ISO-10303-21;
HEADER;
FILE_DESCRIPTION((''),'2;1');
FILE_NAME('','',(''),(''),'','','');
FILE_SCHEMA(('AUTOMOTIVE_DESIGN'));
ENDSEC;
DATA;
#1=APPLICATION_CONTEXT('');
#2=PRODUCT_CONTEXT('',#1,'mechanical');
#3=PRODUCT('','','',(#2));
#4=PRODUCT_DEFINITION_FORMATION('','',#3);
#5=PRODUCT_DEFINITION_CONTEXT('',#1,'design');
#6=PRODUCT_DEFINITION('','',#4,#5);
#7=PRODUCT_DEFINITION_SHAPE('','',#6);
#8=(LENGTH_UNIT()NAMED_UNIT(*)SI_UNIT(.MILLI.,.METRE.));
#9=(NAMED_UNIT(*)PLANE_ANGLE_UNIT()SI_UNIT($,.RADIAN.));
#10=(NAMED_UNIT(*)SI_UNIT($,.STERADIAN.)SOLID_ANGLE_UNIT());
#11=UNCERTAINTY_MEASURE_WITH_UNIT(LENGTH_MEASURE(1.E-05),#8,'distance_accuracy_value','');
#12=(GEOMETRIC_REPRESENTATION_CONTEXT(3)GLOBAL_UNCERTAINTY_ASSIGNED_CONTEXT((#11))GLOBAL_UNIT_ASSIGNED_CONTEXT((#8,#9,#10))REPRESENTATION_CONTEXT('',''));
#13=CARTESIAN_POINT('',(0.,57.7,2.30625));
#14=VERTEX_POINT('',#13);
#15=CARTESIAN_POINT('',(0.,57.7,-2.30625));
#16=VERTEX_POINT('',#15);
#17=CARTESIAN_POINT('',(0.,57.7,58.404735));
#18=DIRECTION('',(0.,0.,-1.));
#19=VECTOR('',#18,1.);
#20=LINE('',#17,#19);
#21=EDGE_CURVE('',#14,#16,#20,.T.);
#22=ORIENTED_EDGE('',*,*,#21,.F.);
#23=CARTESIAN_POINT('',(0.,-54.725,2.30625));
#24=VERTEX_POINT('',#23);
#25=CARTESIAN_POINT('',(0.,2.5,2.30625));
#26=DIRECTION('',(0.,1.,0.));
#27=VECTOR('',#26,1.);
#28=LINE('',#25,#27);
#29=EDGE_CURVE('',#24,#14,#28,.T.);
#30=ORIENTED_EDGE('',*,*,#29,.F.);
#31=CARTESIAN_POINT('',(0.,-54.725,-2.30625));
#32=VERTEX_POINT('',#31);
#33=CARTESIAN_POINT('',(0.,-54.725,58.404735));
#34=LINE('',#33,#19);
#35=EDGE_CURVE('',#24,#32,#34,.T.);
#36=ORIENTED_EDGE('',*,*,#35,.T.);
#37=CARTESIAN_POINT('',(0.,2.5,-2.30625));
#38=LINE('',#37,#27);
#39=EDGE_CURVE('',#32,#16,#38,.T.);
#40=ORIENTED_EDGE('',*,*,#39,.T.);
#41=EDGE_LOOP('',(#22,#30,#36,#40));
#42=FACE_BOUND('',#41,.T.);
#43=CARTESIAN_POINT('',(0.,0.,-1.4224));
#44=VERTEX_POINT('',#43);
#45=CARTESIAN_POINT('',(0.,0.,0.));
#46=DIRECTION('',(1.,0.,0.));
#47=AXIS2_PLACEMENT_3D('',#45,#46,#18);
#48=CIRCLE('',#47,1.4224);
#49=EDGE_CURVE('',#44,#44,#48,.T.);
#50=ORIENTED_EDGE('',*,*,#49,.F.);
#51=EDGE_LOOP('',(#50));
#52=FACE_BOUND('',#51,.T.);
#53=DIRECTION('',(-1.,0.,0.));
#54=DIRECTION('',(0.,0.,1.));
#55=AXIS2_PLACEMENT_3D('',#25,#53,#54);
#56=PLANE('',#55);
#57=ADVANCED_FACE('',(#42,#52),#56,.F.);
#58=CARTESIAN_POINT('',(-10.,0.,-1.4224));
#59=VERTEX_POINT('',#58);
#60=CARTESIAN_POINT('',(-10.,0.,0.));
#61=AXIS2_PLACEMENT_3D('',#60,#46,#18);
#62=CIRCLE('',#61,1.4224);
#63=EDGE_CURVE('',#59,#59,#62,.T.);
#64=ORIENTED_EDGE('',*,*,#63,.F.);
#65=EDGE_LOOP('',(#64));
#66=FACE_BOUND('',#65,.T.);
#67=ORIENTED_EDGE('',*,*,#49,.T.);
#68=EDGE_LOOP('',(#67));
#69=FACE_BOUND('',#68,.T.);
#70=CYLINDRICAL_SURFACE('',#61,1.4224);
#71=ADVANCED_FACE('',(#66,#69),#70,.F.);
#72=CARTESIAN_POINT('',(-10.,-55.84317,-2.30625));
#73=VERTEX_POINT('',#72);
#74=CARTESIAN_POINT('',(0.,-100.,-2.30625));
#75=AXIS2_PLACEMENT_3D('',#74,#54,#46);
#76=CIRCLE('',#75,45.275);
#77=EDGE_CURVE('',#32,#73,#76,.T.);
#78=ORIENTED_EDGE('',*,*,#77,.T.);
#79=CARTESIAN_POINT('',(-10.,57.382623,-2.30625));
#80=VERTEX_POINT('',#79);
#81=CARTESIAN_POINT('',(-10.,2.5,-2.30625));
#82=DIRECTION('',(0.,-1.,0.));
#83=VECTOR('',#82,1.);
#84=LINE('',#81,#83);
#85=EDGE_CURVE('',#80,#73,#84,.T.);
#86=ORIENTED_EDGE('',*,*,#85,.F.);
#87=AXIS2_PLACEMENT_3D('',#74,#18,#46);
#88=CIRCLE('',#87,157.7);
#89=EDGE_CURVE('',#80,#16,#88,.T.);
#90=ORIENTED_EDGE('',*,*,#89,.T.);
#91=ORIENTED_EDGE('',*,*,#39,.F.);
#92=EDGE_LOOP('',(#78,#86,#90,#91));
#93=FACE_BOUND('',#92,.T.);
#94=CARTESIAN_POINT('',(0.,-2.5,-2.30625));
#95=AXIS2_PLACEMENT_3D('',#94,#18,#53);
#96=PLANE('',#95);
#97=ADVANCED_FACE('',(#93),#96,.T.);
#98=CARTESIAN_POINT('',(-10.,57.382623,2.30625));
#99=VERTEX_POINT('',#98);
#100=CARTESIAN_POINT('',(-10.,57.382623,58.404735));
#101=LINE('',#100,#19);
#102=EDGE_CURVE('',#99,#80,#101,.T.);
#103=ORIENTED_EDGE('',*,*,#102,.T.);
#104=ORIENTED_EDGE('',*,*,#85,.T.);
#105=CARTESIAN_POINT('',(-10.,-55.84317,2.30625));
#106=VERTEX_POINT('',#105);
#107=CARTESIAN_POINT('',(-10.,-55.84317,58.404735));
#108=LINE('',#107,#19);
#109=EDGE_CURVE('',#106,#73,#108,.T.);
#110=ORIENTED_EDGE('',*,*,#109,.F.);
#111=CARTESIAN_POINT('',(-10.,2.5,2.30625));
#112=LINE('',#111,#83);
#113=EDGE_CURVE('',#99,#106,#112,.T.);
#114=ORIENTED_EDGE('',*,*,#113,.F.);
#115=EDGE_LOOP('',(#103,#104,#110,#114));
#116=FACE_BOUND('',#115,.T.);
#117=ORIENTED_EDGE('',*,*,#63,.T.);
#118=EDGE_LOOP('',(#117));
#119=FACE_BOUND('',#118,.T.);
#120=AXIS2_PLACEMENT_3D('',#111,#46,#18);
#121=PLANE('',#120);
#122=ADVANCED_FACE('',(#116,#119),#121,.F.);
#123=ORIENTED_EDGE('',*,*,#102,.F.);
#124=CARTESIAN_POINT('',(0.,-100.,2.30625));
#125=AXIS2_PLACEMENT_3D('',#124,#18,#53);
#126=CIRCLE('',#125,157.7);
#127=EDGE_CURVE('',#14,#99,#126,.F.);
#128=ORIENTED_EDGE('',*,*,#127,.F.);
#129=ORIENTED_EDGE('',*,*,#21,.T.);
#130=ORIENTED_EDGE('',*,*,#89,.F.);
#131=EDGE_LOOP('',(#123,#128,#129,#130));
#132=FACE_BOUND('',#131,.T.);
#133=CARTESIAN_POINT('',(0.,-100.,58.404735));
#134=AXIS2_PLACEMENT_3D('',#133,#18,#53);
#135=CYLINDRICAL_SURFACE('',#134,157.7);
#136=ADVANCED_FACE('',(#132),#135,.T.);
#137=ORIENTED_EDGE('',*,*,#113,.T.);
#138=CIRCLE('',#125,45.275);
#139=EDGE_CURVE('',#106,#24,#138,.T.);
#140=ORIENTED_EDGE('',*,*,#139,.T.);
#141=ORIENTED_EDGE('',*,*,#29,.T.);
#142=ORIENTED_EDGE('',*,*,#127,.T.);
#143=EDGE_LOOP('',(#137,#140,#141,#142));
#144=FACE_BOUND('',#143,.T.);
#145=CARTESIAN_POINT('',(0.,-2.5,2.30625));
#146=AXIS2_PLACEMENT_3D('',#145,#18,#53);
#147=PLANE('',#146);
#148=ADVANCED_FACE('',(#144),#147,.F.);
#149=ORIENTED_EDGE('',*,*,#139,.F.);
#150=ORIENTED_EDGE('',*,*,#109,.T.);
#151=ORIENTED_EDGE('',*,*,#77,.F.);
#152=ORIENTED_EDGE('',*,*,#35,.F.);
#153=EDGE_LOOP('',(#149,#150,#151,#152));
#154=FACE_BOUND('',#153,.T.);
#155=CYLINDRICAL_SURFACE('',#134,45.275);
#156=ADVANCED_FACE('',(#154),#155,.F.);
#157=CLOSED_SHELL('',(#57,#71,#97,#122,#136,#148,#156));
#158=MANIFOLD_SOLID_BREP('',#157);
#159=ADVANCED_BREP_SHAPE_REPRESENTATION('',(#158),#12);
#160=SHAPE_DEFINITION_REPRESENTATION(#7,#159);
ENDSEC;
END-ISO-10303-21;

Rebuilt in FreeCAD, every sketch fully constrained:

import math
import FreeCAD as App
import Part
import Sketcher

V = App.Vector
Q = App.Units.Quantity


def add_polygon(sketch, points):
    """Adds a closed chain of lines whose ends are joined by coincident constraints."""
    first, n = sketch.GeometryCount, len(points)
    for a, b in zip(points, points[1:] + points[:1]):
        sketch.addGeometry(Part.LineSegment(App.Vector(*a, 0), App.Vector(*b, 0)), False)
    for i in range(n):
        sketch.addConstraint(Sketcher.Constraint("Coincident", first + i, 2, first + (i + 1) % n, 1))

doc = App.newDocument("Part")
body = doc.addObject("PartDesign::Body", "Body")

# Sketch on XY plane
sketch1 = doc.addObject("Sketcher::SketchObject", "Sketch")
body.addObject(sketch1)
sketch1.AttachmentSupport = (doc.XY_Plane, [""])
sketch1.MapMode = "FlatFace"
add_polygon(sketch1, [(-10, 2), (-10, -2), (0, -2), (0, 2)])  # lines 0-3
sketch1.addConstraint(Sketcher.Constraint("Vertical", 0))
sketch1.addConstraint(Sketcher.Constraint("Horizontal", 1))
sketch1.addConstraint(Sketcher.Constraint("Vertical", 2))
sketch1.addConstraint(Sketcher.Constraint("Horizontal", 3))
sketch1.addConstraint(Sketcher.Constraint("Symmetric", 1, 2, 2, 2, -1, 1))
sketch1.addConstraint(Sketcher.Constraint("DistanceX", 1, 1, 1, 2, Q("10 mm")))
sketch1.addConstraint(Sketcher.Constraint("DistanceY", 0, 2, 0, 1, Q("5 mm")))
pad1 = doc.addObject("PartDesign::Pad", "Pad")
body.addObject(pad1)
pad1.Profile = sketch1
pad1.Length = 4.6125
pad1.Midplane = True

# Sketch on YZ plane
sketch2 = doc.addObject("Sketcher::SketchObject", "Sketch001")
body.addObject(sketch2)
sketch2.AttachmentSupport = (doc.YZ_Plane, [""])
sketch2.MapMode = "FlatFace"
sketch2.addGeometry(Part.Circle(V(0, 0, 0), V(0, 0, 1), 1.4), False)
sketch2.addConstraint(Sketcher.Constraint("Coincident", 0, 3, -1, 1))
sketch2.addConstraint(Sketcher.Constraint("Diameter", 0, Q("2.8448 mm")))
pocket1 = doc.addObject("PartDesign::Pocket", "Pocket")
body.addObject(pocket1)
pocket1.Profile = sketch2
pocket1.Type = "ThroughAll"

# Sketch on XY plane
sketch3 = doc.addObject("Sketcher::SketchObject", "Sketch002")
body.addObject(sketch3)
sketch3.AttachmentSupport = (doc.XY_Plane, [""])
sketch3.MapMode = "FlatFace"
sketch3.AttachmentOffset = App.Placement(V(0, 0, -2.30625), App.Rotation())
sketch3.addGeometry(Part.LineSegment(V(-10, 2, 0), V(-10, 57, 0)), False)
sketch3.addGeometry(Part.ArcOfCircle(Part.Circle(V(0, -100, 0), V(0, 0, 1), 158), math.radians(90), math.radians(93.64)), False)
sketch3.addGeometry(Part.LineSegment(V(0, 58, 0), V(0, 2, 0)), False)
sketch3.addGeometry(Part.LineSegment(V(0, 2, 0), V(-10, 2, 0)), False)
sketch3.addGeometry(Part.LineSegment(V(0, -2, 0), V(0, -55, 0)), False)
sketch3.addGeometry(Part.ArcOfCircle(Part.Circle(V(0, -100, 0), V(0, 0, 1), 45), math.radians(90), math.radians(102.76)), False)
sketch3.addGeometry(Part.LineSegment(V(-10, -56, 0), V(-10, -2, 0)), False)
sketch3.addGeometry(Part.LineSegment(V(-10, -2, 0), V(0, -2, 0)), False)
sketch3.addConstraint(Sketcher.Constraint("Coincident", 0, 2, 1, 2))
sketch3.addConstraint(Sketcher.Constraint("Coincident", 1, 1, 2, 1))
sketch3.addConstraint(Sketcher.Constraint("Coincident", 2, 2, 3, 1))
sketch3.addConstraint(Sketcher.Constraint("Coincident", 3, 2, 0, 1))
sketch3.addConstraint(Sketcher.Constraint("Coincident", 4, 2, 5, 1))
sketch3.addConstraint(Sketcher.Constraint("Coincident", 5, 2, 6, 1))
sketch3.addConstraint(Sketcher.Constraint("Coincident", 6, 2, 7, 1))
sketch3.addConstraint(Sketcher.Constraint("Coincident", 7, 2, 4, 1))
sketch3.addConstraint(Sketcher.Constraint("Vertical", 0))
sketch3.addConstraint(Sketcher.Constraint("Vertical", 2))
sketch3.addConstraint(Sketcher.Constraint("Horizontal", 3))
sketch3.addConstraint(Sketcher.Constraint("Vertical", 4))
sketch3.addConstraint(Sketcher.Constraint("Vertical", 6))
sketch3.addConstraint(Sketcher.Constraint("Horizontal", 7))
sketch3.addConstraint(Sketcher.Constraint("Coincident", 5, 3, 1, 3))
sketch3.addConstraint(Sketcher.Constraint("Symmetric", 2, 2, 7, 2, -1, 1))
sketch3.addConstraint(Sketcher.Constraint("PointOnObject", 1, 3, -2))
sketch3.addConstraint(Sketcher.Constraint("PointOnObject", 1, 1, -2))
sketch3.addConstraint(Sketcher.Constraint("Vertical", 3, 2, 5, 2))
sketch3.addConstraint(Sketcher.Constraint("Radius", 1, Q("157.7 mm")))
sketch3.addConstraint(Sketcher.Constraint("DistanceX", 3, 2, 3, 1, Q("10 mm")))
sketch3.addConstraint(Sketcher.Constraint("DistanceY", 2, 2, 2, 1, Q("55.2 mm")))
sketch3.addConstraint(Sketcher.Constraint("DistanceY", 1, 3, -1, 1, Q("100 mm")))
sketch3.addConstraint(Sketcher.Constraint("Radius", 5, Q("45.275 mm")))
pad2 = doc.addObject("PartDesign::Pad", "Pad001")
body.addObject(pad2)
pad2.Profile = sketch3
pad2.Length = 4.6125

doc.recompute()
